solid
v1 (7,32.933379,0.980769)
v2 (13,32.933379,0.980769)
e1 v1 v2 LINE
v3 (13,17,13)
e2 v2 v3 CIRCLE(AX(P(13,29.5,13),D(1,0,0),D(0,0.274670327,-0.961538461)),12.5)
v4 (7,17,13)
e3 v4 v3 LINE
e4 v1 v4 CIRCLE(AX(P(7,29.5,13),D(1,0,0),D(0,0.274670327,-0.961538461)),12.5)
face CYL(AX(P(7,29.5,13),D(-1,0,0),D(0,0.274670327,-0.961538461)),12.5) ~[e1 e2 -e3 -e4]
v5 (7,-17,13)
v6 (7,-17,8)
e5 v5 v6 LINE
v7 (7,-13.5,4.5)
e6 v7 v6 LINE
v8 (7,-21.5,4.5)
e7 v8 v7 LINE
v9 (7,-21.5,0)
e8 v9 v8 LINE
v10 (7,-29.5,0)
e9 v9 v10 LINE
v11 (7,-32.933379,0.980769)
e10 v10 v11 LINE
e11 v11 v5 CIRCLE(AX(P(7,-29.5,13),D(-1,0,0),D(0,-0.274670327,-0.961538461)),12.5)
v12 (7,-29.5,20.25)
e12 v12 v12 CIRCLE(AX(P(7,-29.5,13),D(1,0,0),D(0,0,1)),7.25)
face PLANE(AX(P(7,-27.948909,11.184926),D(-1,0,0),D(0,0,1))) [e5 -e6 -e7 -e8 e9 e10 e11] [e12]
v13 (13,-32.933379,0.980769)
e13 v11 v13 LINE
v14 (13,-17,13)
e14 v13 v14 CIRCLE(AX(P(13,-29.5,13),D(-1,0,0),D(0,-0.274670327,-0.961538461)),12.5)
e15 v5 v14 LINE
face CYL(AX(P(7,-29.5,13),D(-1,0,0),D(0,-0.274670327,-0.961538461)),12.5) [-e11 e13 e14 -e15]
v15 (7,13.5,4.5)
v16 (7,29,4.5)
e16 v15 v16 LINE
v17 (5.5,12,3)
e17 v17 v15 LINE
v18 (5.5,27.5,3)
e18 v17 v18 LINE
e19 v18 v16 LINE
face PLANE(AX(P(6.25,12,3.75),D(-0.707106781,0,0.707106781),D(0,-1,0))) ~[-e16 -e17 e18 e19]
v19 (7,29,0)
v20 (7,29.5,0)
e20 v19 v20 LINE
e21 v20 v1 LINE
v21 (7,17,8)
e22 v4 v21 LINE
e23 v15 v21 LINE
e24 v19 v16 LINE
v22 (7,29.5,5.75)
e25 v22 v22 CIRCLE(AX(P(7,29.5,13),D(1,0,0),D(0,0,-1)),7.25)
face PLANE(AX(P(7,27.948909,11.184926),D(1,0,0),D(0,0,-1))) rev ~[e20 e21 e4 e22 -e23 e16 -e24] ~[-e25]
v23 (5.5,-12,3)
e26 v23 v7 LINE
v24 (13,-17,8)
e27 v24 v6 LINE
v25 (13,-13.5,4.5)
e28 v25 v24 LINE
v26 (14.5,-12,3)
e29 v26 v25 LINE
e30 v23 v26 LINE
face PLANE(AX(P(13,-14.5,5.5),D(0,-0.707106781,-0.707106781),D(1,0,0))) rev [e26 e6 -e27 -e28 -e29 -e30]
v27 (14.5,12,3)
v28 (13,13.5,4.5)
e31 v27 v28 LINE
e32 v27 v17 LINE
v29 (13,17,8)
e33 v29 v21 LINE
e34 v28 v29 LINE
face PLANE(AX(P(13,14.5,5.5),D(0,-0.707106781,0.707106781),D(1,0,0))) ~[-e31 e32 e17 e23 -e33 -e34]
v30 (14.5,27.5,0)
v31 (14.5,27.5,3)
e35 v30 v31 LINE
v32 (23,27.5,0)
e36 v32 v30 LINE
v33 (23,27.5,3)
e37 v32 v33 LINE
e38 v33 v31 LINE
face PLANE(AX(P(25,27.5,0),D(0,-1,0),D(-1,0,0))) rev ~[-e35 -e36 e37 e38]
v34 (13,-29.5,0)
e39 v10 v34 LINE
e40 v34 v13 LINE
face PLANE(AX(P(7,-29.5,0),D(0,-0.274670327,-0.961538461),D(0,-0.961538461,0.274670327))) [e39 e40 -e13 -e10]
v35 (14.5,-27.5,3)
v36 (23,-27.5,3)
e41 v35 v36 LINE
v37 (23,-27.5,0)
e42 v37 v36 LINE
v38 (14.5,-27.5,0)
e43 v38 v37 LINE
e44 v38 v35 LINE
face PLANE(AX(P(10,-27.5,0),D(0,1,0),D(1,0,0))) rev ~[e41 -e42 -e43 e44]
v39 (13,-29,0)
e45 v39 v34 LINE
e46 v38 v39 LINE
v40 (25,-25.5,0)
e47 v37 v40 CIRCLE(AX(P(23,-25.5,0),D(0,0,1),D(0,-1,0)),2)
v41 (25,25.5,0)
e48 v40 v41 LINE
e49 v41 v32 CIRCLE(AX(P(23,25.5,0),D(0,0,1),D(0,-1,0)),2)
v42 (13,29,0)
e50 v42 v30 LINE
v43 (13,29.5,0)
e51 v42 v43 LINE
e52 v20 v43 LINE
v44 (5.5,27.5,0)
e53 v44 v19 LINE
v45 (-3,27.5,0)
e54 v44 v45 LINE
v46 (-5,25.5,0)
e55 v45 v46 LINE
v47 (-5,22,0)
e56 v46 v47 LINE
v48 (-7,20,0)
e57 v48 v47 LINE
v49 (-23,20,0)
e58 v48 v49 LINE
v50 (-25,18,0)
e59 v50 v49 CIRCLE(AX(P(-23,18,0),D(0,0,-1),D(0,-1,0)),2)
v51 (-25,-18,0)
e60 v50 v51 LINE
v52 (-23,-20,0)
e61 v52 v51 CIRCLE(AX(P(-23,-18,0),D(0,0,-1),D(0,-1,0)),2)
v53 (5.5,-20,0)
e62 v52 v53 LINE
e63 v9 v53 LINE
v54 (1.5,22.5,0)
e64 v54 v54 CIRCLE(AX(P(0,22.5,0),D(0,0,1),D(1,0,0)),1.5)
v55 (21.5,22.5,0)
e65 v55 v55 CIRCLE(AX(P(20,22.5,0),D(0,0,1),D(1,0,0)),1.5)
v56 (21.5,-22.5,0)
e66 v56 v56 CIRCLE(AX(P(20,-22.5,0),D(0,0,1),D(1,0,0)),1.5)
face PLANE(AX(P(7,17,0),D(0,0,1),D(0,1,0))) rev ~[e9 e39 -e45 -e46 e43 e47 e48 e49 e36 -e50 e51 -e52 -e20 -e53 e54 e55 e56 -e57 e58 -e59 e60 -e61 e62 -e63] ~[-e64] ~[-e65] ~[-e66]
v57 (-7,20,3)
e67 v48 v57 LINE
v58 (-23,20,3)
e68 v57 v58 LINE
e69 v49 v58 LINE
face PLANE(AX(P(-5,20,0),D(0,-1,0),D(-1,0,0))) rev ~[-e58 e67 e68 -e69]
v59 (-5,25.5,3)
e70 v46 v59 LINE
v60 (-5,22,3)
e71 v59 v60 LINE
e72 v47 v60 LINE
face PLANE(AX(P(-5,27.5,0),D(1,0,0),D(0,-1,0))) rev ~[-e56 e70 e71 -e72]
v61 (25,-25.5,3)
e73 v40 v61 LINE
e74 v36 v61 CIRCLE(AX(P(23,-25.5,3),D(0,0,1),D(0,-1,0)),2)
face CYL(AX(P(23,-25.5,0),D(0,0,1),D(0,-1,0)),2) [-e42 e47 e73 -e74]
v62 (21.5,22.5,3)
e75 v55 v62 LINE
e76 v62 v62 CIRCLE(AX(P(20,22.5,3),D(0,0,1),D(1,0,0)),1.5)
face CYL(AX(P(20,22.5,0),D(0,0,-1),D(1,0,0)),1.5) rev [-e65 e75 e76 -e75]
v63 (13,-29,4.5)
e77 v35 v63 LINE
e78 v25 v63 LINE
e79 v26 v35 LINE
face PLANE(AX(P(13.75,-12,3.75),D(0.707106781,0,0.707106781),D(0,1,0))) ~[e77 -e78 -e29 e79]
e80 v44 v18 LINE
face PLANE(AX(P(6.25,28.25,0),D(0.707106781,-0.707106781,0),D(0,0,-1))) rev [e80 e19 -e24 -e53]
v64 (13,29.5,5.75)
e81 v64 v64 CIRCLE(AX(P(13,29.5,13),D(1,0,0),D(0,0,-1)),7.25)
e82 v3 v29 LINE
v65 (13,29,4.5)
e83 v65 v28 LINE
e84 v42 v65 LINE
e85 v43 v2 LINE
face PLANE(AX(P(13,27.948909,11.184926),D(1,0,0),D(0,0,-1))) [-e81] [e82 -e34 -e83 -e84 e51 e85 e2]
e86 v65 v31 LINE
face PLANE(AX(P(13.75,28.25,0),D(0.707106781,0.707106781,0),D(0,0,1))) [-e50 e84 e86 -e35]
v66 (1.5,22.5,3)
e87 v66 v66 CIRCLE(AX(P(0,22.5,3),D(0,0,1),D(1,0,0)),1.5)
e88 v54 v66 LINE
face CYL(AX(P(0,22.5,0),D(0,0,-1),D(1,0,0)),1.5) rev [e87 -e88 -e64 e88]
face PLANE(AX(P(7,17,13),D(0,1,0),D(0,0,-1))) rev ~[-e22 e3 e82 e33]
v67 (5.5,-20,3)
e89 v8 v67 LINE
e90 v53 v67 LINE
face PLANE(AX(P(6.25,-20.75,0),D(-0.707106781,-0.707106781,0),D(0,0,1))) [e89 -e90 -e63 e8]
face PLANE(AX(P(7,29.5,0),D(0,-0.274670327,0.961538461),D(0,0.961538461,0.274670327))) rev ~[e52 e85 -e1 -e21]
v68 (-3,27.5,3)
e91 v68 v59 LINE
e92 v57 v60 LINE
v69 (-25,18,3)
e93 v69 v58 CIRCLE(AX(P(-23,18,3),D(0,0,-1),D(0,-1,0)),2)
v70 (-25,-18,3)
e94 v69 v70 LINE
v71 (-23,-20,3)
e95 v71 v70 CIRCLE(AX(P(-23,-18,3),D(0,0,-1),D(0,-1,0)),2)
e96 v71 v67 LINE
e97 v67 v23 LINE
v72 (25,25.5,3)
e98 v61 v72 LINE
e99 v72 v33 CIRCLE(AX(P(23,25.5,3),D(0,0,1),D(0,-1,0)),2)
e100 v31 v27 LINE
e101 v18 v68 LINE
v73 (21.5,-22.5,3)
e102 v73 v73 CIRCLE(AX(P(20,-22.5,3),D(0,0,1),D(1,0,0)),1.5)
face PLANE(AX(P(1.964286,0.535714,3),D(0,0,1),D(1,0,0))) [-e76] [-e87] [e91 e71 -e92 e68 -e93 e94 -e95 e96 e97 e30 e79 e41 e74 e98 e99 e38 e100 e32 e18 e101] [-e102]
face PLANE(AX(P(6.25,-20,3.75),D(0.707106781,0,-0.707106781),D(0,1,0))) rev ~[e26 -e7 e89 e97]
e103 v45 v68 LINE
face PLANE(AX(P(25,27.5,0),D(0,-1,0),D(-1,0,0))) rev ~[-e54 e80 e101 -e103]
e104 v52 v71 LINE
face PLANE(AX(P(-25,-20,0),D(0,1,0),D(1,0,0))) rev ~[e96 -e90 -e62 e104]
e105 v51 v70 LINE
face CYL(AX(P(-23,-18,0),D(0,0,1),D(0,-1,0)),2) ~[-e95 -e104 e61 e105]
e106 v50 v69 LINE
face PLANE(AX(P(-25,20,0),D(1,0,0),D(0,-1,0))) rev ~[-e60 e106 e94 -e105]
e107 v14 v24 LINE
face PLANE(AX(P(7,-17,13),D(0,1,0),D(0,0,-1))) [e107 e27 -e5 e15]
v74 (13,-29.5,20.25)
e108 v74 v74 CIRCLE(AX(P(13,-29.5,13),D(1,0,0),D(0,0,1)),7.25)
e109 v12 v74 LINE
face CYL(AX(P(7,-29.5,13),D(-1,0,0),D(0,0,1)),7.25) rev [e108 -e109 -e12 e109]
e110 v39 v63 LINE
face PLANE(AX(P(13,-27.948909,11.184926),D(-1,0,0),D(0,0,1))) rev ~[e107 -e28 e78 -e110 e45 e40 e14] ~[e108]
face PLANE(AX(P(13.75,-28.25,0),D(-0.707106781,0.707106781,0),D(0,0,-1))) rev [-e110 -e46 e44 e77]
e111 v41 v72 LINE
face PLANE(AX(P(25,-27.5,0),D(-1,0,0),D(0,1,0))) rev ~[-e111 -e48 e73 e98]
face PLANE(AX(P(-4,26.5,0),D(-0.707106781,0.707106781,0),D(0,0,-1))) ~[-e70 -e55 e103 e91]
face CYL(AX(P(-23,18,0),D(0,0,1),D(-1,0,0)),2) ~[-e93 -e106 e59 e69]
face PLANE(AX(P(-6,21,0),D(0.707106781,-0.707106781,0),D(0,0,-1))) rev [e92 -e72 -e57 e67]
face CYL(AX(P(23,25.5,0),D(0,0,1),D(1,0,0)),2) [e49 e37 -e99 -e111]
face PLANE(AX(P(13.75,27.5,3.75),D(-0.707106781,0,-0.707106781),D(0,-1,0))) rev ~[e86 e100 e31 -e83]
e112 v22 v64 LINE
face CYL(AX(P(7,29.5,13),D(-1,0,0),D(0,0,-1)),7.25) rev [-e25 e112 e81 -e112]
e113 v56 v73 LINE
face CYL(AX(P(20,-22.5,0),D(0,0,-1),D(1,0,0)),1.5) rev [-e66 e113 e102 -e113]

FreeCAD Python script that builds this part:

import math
import FreeCAD as App
import Part
import Sketcher

V = App.Vector
Q = App.Units.Quantity


def edges_at(feature, points):
    """Names of the edges that pass closest to the given points."""
    edges = feature.Shape.Edges
    near = lambda p: min(range(len(edges)), key=lambda i: edges[i].distToShape(Part.Vertex(*p))[0])
    return sorted({f"Edge{near(p) + 1}" for p in points})

doc = App.newDocument("Part")
body = doc.addObject("PartDesign::Body", "Body")

# Sketch on XY plane
sketch1 = doc.addObject("Sketcher::SketchObject", "Sketch")
body.addObject(sketch1)
sketch1.AttachmentSupport = (doc.XY_Plane, [""])
sketch1.MapMode = "FlatFace"
sketch1.addGeometry([
    Part.LineSegment(V(10, -27.5, 0), V(25, -27.5, 0)),  # 0
    Part.LineSegment(V(25, -27.5, 0), V(25, 27.5, 0)),  # 1
    Part.LineSegment(V(25, 27.5, 0), V(-5, 27.5, 0)),  # 2
    Part.LineSegment(V(-5, 27.5, 0), V(-5, 20, 0)),  # 3
    Part.LineSegment(V(-5, 20, 0), V(-25, 20, 0)),  # 4
    Part.LineSegment(V(-25, 20, 0), V(-25, -20, 0)),  # 5
    Part.LineSegment(V(-25, -20, 0), V(10, -20, 0)),  # 6
    Part.LineSegment(V(10, -20, 0), V(10, -27.5, 0)),  # 7
    Part.Circle(V(20, -22.5, 0), V(0, 0, 1), 1.5),  # 8
    Part.Circle(V(0, 22.5, 0), V(0, 0, 1), 1.5),  # 9
    Part.Circle(V(20, 22.5, 0), V(0, 0, 1), 1.5),  # 10
], False)
sketch1.addConstraint([
    Sketcher.Constraint("Coincident", 0, 2, 1, 1),
    Sketcher.Constraint("Coincident", 1, 2, 2, 1),
    Sketcher.Constraint("Coincident", 2, 2, 3, 1),
    Sketcher.Constraint("Coincident", 3, 2, 4, 1),
    Sketcher.Constraint("Coincident", 4, 2, 5, 1),
    Sketcher.Constraint("Coincident", 5, 2, 6, 1),
    Sketcher.Constraint("Coincident", 6, 2, 7, 1),
    Sketcher.Constraint("Coincident", 7, 2, 0, 1),
    Sketcher.Constraint("Horizontal", 0),
    Sketcher.Constraint("Vertical", 1),
    Sketcher.Constraint("Horizontal", 2),
    Sketcher.Constraint("Vertical", 3),
    Sketcher.Constraint("Horizontal", 4),
    Sketcher.Constraint("Vertical", 5),
    Sketcher.Constraint("Horizontal", 6),
    Sketcher.Constraint("Vertical", 7),
    Sketcher.Constraint("Equal", 8, 9),
    Sketcher.Constraint("Equal", 9, 10),
    Sketcher.Constraint("Symmetric", 8, 3, 10, 3, -1),
    Sketcher.Constraint("PointOnObject", 9, 3, -2),
    Sketcher.Constraint("Horizontal", 9, 3, 10, 3),
    Sketcher.Constraint("Equal", 3, 7),
    Sketcher.Constraint("Diameter", 8, Q("3 mm")),
    Sketcher.Constraint("DistanceX", 0, 1, 0, 2, Q("15 mm")),
    Sketcher.Constraint("DistanceX", 2, 2, 2, 1, Q("30 mm")),
    Sketcher.Constraint("DistanceX", 4, 2, 4, 1, Q("20 mm")),
    Sketcher.Constraint("DistanceY", 1, 1, 1, 2, Q("55 mm")),
    Sketcher.Constraint("DistanceY", 5, 2, 5, 1, Q("40 mm")),
    Sketcher.Constraint("DistanceX", -1, 1, 8, 3, Q("20 mm")),
    Sketcher.Constraint("DistanceX", -1, 1, 0, 2, Q("25 mm")),
    Sketcher.Constraint("DistanceY", -1, 1, 3, 2, Q("20 mm")),
    Sketcher.Constraint("DistanceY", 8, 3, 9, 3, Q("45 mm")),
])
pad1 = doc.addObject("PartDesign::Pad", "Pad")
body.addObject(pad1)
pad1.Profile = sketch1
pad1.Length = 3
doc.recompute()

fillet = doc.addObject("PartDesign::Fillet", "Fillet")
body.addObject(fillet)
fillet.Base = (pad1, edges_at(pad1, [
    (25, -27.5, 1.5),
    (-25, -20, 1.5),
    (-25, 20, 1.5),
    (25, 27.5, 1.5),
]))
fillet.Radius = 2

# Sketch on YZ plane
sketch2 = doc.addObject("Sketcher::SketchObject", "Sketch001")
body.addObject(sketch2)
sketch2.AttachmentSupport = (doc.YZ_Plane, [""])
sketch2.MapMode = "FlatFace"
sketch2.AttachmentOffset = App.Placement(V(0, 0, 7), App.Rotation())
sketch2.addGeometry([
    Part.LineSegment(V(17, 13, 0), V(17, 0, 0)),  # 0
    Part.LineSegment(V(17, 0, 0), V(29.5, 0, 0)),  # 1
    Part.LineSegment(V(29.5, 0, 0), V(32.933379, 0.980769, 0)),  # 2
    Part.ArcOfCircle(Part.Circle(V(29.5, 13, 0), V(0, 0, 1), 12.5), math.radians(-74.057631), math.radians(180)),  # 3
    Part.Circle(V(29.5, 13, 0), V(0, 0, 1), 7.25),  # 4
    Part.LineSegment(V(-32.933379, 0.980769, 0), V(-29.5, 0, 0)),  # 5
    Part.LineSegment(V(-29.5, 0, 0), V(-17, 0, 0)),  # 6
    Part.LineSegment(V(-17, 0, 0), V(-17, 13, 0)),  # 7
    Part.ArcOfCircle(Part.Circle(V(-29.5, 13, 0), V(0, 0, 1), 12.5), math.radians(0), math.radians(254.057631)),  # 8
    Part.Circle(V(-29.5, 13, 0), V(0, 0, 1), 7.25),  # 9
], False)
sketch2.addConstraint([
    Sketcher.Constraint("Coincident", 0, 2, 1, 1),
    Sketcher.Constraint("Coincident", 1, 2, 2, 1),
    Sketcher.Constraint("Tangent", 2, 2, 3, 1),
    Sketcher.Constraint("Tangent", 3, 2, 0, 1),
    Sketcher.Constraint("Coincident", 5, 2, 6, 1),
    Sketcher.Constraint("Coincident", 6, 2, 7, 1),
    Sketcher.Constraint("Tangent", 7, 2, 8, 1),
    Sketcher.Constraint("Tangent", 8, 2, 5, 1),
    Sketcher.Constraint("Vertical", 0),
    Sketcher.Constraint("Horizontal", 1),
    Sketcher.Constraint("Horizontal", 6),
    Sketcher.Constraint("Vertical", 7),
    Sketcher.Constraint("Coincident", 4, 3, 3, 3),
    Sketcher.Constraint("Coincident", 9, 3, 8, 3),
    Sketcher.Constraint("Equal", 3, 8),
    Sketcher.Constraint("Equal", 4, 9),
    Sketcher.Constraint("Symmetric", 1, 2, 5, 2, -1, 1),
    Sketcher.Constraint("Symmetric", 3, 3, 8, 3, -2),
    Sketcher.Constraint("PointOnObject", 0, 2, -1),
    Sketcher.Constraint("Vertical", 4, 3, 1, 2),
    Sketcher.Constraint("Diameter", 4, Q("14.5 mm")),
    Sketcher.Constraint("Radius", 3, Q("12.5 mm")),
    Sketcher.Constraint("DistanceY", 0, 2, 0, 1, Q("13 mm")),
    Sketcher.Constraint("DistanceX", -1, 1, 0, 2, Q("17 mm")),
])
pad2 = doc.addObject("PartDesign::Pad", "Pad001")
body.addObject(pad2)
pad2.Profile = sketch2
pad2.Length = 6
doc.recompute()

chamfer = doc.addObject("PartDesign::Chamfer", "Chamfer")
body.addObject(chamfer)
chamfer.Base = (pad2, edges_at(pad2, [(-5, 20, 1.5), (-5, 27.5, 1.5)]))
chamfer.Size = 2
doc.recompute()

chamfer2 = doc.addObject("PartDesign::Chamfer", "Chamfer001")
body.addObject(chamfer2)
chamfer2.Base = (chamfer, edges_at(chamfer, [(10, -17, 3), (10, 17, 3)]))
chamfer2.Size = 5
doc.recompute()

chamfer3 = doc.addObject("PartDesign::Chamfer", "Chamfer002")
body.addObject(chamfer3)
chamfer3.Base = (chamfer2, edges_at(chamfer2, [
    (13, -27.5, 1.5),
    (7, -20, 1.5),
    (13, -19.75, 3),
    (7, -16, 3),
    (7, 27.5, 1.5),
    (13, 27.5, 1.5),
    (7, 19.75, 3),
    (13, 19.75, 3),
]))
chamfer3.Size = 1.5

doc.recompute()
